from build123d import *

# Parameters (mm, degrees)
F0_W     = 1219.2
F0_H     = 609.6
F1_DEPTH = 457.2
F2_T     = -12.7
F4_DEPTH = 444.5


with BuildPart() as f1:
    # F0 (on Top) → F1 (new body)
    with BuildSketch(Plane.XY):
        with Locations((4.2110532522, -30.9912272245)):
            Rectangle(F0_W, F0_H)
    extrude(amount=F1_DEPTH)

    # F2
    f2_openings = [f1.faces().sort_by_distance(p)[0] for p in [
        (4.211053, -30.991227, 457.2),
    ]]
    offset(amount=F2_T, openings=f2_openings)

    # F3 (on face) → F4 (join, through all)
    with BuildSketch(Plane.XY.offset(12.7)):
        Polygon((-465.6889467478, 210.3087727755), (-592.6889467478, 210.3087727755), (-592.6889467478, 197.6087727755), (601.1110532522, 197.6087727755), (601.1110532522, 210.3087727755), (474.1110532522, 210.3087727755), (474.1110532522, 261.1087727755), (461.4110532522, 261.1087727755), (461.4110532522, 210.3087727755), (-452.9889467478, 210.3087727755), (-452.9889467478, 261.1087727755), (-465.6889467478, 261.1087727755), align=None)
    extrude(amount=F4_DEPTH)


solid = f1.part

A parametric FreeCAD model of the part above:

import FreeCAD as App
import Part
import Sketcher

V = App.Vector
Q = App.Units.Quantity


def faces_at(feature, points):
    """Names of the faces that lie closest to the given points."""
    faces = feature.Shape.Faces
    near = lambda p: min(range(len(faces)), key=lambda i: faces[i].distToShape(Part.Vertex(*p))[0])
    return sorted({f"Face{near(p) + 1}" for p in points})


def add_polygon(sketch, points):
    """Adds a closed chain of lines whose ends are joined by coincident constraints."""
    first, n = sketch.GeometryCount, len(points)
    for a, b in zip(points, points[1:] + points[:1]):
        sketch.addGeometry(Part.LineSegment(App.Vector(*a, 0), App.Vector(*b, 0)), False)
    for i in range(n):
        sketch.addConstraint(Sketcher.Constraint("Coincident", first + i, 2, first + (i + 1) % n, 1))

doc = App.newDocument("Part")
body = doc.addObject("PartDesign::Body", "Body")

# Sketch on XY plane
sketch1 = body.newObject("Sketcher::SketchObject", "Sketch")
sketch1.AttachmentSupport = (doc.getObject("XY_Plane"), [""])
sketch1.MapMode = "FlatFace"
add_polygon(sketch1, [(-605, 274), (-605, -336), (614, -336), (614, 274)])  # lines 0-3
sketch1.addConstraint([
    Sketcher.Constraint("Vertical", 0),
    Sketcher.Constraint("Horizontal", 1),
    Sketcher.Constraint("Vertical", 2),
    Sketcher.Constraint("Horizontal", 3),
    Sketcher.Constraint("DistanceX", 1, 1, 1, 2, Q("48 in")),
    Sketcher.Constraint("DistanceY", 0, 2, 0, 1, Q("24 in")),
    Sketcher.Constraint("DistanceX", 0, 2, -1, 1, Q("605.388947 mm")),
    Sketcher.Constraint("DistanceY", 0, 2, -1, 1, Q("335.791227 mm")),
])
pad1 = body.newObject("PartDesign::Pad", "Pad")
pad1.Profile = sketch1
pad1.Length = Q("18 in")
doc.recompute()

thickness = body.newObject("PartDesign::Thickness", "Thickness")
thickness.Base = (pad1, faces_at(pad1, [(4.211, -30.991, 457.2)]))
thickness.Value = Q("0.5 in")
thickness.Reversed = True
thickness.Join = "Arc"

# Sketch on XY plane
sketch2 = body.newObject("Sketcher::SketchObject", "Sketch001")
sketch2.AttachmentSupport = (doc.getObject("XY_Plane"), [""])
sketch2.MapMode = "FlatFace"
sketch2.AttachmentOffset = App.Placement(V(0, 0, 0.5 * 25.4), App.Rotation())
add_polygon(sketch2, [(-466, 210), (-593, 210), (-593, 198), (601, 198), (601, 210), (474, 210), (474, 261), (461, 261), (461, 210), (-453, 210), (-453, 261), (-466, 261)])  # lines 0-11
sketch2.addConstraint([
    Sketcher.Constraint("Horizontal", 0),
    Sketcher.Constraint("Vertical", 1),
    Sketcher.Constraint("Horizontal", 2),
    Sketcher.Constraint("Vertical", 3),
    Sketcher.Constraint("Horizontal", 4),
    Sketcher.Constraint("Vertical", 5),
    Sketcher.Constraint("Horizontal", 6),
    Sketcher.Constraint("Vertical", 7),
    Sketcher.Constraint("Horizontal", 8),
    Sketcher.Constraint("Vertical", 9),
    Sketcher.Constraint("Horizontal", 10),
    Sketcher.Constraint("Vertical", 11),
    Sketcher.Constraint("Horizontal", 0, 2, 3, 2),
    Sketcher.Constraint("Horizontal", 4, 2, 7, 2),
    Sketcher.Constraint("Horizontal", 6, 2, 9, 2),
    Sketcher.Constraint("Equal", 0, 4),
    Sketcher.Constraint("Equal", 6, 10),
    Sketcher.Constraint("Equal", 10, 1),
    Sketcher.Constraint("DistanceX", 0, 2, 0, 1, Q("5 in")),
    Sketcher.Constraint("DistanceX", 2, 1, 2, 2, Q("47 in")),
    Sketcher.Constraint("DistanceX", 8, 2, 8, 1, Q("36 in")),
    Sketcher.Constraint("DistanceY", 5, 1, 5, 2, Q("2 in")),
    Sketcher.Constraint("DistanceX", 0, 2, -1, 1, Q("592.688947 mm")),
    Sketcher.Constraint("DistanceY", -1, 1, 0, 2, Q("210.308773 mm")),
])
pad2 = body.newObject("PartDesign::Pad", "Pad001")
pad2.Profile = sketch2
pad2.Length = Q("17.5 in")

doc.recompute()
